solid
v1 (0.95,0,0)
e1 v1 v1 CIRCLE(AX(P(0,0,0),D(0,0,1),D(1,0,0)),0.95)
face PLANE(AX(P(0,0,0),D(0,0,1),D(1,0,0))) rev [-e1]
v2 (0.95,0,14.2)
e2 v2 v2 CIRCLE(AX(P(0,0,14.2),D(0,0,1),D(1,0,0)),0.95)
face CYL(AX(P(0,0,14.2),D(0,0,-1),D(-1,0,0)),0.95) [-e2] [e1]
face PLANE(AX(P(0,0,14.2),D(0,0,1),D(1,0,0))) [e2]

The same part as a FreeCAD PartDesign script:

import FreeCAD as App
import Part
import Sketcher
Q = App.Units.Quantity

doc = App.newDocument("Part")
body = doc.addObject("PartDesign::Body", "Body")

# Sketch on XY plane
sketch1 = body.newObject("Sketcher::SketchObject", "Sketch")
sketch1.AttachmentSupport = (doc.getObject("XY_Plane"), [""])
sketch1.MapMode = "FlatFace"
sketch1.addGeometry(Part.Circle(App.Vector(0, 0, 0), App.Vector(0, 0, 1), 0.9), False)
sketch1.addConstraint(Sketcher.Constraint("Coincident", 0, 3, -1, 1))
sketch1.addConstraint(Sketcher.Constraint("Diameter", 0, Q("1.9 mm")))
pad1 = body.newObject("PartDesign::Pad", "Pad")
pad1.Profile = sketch1
pad1.Length = 14.2

doc.recompute()
